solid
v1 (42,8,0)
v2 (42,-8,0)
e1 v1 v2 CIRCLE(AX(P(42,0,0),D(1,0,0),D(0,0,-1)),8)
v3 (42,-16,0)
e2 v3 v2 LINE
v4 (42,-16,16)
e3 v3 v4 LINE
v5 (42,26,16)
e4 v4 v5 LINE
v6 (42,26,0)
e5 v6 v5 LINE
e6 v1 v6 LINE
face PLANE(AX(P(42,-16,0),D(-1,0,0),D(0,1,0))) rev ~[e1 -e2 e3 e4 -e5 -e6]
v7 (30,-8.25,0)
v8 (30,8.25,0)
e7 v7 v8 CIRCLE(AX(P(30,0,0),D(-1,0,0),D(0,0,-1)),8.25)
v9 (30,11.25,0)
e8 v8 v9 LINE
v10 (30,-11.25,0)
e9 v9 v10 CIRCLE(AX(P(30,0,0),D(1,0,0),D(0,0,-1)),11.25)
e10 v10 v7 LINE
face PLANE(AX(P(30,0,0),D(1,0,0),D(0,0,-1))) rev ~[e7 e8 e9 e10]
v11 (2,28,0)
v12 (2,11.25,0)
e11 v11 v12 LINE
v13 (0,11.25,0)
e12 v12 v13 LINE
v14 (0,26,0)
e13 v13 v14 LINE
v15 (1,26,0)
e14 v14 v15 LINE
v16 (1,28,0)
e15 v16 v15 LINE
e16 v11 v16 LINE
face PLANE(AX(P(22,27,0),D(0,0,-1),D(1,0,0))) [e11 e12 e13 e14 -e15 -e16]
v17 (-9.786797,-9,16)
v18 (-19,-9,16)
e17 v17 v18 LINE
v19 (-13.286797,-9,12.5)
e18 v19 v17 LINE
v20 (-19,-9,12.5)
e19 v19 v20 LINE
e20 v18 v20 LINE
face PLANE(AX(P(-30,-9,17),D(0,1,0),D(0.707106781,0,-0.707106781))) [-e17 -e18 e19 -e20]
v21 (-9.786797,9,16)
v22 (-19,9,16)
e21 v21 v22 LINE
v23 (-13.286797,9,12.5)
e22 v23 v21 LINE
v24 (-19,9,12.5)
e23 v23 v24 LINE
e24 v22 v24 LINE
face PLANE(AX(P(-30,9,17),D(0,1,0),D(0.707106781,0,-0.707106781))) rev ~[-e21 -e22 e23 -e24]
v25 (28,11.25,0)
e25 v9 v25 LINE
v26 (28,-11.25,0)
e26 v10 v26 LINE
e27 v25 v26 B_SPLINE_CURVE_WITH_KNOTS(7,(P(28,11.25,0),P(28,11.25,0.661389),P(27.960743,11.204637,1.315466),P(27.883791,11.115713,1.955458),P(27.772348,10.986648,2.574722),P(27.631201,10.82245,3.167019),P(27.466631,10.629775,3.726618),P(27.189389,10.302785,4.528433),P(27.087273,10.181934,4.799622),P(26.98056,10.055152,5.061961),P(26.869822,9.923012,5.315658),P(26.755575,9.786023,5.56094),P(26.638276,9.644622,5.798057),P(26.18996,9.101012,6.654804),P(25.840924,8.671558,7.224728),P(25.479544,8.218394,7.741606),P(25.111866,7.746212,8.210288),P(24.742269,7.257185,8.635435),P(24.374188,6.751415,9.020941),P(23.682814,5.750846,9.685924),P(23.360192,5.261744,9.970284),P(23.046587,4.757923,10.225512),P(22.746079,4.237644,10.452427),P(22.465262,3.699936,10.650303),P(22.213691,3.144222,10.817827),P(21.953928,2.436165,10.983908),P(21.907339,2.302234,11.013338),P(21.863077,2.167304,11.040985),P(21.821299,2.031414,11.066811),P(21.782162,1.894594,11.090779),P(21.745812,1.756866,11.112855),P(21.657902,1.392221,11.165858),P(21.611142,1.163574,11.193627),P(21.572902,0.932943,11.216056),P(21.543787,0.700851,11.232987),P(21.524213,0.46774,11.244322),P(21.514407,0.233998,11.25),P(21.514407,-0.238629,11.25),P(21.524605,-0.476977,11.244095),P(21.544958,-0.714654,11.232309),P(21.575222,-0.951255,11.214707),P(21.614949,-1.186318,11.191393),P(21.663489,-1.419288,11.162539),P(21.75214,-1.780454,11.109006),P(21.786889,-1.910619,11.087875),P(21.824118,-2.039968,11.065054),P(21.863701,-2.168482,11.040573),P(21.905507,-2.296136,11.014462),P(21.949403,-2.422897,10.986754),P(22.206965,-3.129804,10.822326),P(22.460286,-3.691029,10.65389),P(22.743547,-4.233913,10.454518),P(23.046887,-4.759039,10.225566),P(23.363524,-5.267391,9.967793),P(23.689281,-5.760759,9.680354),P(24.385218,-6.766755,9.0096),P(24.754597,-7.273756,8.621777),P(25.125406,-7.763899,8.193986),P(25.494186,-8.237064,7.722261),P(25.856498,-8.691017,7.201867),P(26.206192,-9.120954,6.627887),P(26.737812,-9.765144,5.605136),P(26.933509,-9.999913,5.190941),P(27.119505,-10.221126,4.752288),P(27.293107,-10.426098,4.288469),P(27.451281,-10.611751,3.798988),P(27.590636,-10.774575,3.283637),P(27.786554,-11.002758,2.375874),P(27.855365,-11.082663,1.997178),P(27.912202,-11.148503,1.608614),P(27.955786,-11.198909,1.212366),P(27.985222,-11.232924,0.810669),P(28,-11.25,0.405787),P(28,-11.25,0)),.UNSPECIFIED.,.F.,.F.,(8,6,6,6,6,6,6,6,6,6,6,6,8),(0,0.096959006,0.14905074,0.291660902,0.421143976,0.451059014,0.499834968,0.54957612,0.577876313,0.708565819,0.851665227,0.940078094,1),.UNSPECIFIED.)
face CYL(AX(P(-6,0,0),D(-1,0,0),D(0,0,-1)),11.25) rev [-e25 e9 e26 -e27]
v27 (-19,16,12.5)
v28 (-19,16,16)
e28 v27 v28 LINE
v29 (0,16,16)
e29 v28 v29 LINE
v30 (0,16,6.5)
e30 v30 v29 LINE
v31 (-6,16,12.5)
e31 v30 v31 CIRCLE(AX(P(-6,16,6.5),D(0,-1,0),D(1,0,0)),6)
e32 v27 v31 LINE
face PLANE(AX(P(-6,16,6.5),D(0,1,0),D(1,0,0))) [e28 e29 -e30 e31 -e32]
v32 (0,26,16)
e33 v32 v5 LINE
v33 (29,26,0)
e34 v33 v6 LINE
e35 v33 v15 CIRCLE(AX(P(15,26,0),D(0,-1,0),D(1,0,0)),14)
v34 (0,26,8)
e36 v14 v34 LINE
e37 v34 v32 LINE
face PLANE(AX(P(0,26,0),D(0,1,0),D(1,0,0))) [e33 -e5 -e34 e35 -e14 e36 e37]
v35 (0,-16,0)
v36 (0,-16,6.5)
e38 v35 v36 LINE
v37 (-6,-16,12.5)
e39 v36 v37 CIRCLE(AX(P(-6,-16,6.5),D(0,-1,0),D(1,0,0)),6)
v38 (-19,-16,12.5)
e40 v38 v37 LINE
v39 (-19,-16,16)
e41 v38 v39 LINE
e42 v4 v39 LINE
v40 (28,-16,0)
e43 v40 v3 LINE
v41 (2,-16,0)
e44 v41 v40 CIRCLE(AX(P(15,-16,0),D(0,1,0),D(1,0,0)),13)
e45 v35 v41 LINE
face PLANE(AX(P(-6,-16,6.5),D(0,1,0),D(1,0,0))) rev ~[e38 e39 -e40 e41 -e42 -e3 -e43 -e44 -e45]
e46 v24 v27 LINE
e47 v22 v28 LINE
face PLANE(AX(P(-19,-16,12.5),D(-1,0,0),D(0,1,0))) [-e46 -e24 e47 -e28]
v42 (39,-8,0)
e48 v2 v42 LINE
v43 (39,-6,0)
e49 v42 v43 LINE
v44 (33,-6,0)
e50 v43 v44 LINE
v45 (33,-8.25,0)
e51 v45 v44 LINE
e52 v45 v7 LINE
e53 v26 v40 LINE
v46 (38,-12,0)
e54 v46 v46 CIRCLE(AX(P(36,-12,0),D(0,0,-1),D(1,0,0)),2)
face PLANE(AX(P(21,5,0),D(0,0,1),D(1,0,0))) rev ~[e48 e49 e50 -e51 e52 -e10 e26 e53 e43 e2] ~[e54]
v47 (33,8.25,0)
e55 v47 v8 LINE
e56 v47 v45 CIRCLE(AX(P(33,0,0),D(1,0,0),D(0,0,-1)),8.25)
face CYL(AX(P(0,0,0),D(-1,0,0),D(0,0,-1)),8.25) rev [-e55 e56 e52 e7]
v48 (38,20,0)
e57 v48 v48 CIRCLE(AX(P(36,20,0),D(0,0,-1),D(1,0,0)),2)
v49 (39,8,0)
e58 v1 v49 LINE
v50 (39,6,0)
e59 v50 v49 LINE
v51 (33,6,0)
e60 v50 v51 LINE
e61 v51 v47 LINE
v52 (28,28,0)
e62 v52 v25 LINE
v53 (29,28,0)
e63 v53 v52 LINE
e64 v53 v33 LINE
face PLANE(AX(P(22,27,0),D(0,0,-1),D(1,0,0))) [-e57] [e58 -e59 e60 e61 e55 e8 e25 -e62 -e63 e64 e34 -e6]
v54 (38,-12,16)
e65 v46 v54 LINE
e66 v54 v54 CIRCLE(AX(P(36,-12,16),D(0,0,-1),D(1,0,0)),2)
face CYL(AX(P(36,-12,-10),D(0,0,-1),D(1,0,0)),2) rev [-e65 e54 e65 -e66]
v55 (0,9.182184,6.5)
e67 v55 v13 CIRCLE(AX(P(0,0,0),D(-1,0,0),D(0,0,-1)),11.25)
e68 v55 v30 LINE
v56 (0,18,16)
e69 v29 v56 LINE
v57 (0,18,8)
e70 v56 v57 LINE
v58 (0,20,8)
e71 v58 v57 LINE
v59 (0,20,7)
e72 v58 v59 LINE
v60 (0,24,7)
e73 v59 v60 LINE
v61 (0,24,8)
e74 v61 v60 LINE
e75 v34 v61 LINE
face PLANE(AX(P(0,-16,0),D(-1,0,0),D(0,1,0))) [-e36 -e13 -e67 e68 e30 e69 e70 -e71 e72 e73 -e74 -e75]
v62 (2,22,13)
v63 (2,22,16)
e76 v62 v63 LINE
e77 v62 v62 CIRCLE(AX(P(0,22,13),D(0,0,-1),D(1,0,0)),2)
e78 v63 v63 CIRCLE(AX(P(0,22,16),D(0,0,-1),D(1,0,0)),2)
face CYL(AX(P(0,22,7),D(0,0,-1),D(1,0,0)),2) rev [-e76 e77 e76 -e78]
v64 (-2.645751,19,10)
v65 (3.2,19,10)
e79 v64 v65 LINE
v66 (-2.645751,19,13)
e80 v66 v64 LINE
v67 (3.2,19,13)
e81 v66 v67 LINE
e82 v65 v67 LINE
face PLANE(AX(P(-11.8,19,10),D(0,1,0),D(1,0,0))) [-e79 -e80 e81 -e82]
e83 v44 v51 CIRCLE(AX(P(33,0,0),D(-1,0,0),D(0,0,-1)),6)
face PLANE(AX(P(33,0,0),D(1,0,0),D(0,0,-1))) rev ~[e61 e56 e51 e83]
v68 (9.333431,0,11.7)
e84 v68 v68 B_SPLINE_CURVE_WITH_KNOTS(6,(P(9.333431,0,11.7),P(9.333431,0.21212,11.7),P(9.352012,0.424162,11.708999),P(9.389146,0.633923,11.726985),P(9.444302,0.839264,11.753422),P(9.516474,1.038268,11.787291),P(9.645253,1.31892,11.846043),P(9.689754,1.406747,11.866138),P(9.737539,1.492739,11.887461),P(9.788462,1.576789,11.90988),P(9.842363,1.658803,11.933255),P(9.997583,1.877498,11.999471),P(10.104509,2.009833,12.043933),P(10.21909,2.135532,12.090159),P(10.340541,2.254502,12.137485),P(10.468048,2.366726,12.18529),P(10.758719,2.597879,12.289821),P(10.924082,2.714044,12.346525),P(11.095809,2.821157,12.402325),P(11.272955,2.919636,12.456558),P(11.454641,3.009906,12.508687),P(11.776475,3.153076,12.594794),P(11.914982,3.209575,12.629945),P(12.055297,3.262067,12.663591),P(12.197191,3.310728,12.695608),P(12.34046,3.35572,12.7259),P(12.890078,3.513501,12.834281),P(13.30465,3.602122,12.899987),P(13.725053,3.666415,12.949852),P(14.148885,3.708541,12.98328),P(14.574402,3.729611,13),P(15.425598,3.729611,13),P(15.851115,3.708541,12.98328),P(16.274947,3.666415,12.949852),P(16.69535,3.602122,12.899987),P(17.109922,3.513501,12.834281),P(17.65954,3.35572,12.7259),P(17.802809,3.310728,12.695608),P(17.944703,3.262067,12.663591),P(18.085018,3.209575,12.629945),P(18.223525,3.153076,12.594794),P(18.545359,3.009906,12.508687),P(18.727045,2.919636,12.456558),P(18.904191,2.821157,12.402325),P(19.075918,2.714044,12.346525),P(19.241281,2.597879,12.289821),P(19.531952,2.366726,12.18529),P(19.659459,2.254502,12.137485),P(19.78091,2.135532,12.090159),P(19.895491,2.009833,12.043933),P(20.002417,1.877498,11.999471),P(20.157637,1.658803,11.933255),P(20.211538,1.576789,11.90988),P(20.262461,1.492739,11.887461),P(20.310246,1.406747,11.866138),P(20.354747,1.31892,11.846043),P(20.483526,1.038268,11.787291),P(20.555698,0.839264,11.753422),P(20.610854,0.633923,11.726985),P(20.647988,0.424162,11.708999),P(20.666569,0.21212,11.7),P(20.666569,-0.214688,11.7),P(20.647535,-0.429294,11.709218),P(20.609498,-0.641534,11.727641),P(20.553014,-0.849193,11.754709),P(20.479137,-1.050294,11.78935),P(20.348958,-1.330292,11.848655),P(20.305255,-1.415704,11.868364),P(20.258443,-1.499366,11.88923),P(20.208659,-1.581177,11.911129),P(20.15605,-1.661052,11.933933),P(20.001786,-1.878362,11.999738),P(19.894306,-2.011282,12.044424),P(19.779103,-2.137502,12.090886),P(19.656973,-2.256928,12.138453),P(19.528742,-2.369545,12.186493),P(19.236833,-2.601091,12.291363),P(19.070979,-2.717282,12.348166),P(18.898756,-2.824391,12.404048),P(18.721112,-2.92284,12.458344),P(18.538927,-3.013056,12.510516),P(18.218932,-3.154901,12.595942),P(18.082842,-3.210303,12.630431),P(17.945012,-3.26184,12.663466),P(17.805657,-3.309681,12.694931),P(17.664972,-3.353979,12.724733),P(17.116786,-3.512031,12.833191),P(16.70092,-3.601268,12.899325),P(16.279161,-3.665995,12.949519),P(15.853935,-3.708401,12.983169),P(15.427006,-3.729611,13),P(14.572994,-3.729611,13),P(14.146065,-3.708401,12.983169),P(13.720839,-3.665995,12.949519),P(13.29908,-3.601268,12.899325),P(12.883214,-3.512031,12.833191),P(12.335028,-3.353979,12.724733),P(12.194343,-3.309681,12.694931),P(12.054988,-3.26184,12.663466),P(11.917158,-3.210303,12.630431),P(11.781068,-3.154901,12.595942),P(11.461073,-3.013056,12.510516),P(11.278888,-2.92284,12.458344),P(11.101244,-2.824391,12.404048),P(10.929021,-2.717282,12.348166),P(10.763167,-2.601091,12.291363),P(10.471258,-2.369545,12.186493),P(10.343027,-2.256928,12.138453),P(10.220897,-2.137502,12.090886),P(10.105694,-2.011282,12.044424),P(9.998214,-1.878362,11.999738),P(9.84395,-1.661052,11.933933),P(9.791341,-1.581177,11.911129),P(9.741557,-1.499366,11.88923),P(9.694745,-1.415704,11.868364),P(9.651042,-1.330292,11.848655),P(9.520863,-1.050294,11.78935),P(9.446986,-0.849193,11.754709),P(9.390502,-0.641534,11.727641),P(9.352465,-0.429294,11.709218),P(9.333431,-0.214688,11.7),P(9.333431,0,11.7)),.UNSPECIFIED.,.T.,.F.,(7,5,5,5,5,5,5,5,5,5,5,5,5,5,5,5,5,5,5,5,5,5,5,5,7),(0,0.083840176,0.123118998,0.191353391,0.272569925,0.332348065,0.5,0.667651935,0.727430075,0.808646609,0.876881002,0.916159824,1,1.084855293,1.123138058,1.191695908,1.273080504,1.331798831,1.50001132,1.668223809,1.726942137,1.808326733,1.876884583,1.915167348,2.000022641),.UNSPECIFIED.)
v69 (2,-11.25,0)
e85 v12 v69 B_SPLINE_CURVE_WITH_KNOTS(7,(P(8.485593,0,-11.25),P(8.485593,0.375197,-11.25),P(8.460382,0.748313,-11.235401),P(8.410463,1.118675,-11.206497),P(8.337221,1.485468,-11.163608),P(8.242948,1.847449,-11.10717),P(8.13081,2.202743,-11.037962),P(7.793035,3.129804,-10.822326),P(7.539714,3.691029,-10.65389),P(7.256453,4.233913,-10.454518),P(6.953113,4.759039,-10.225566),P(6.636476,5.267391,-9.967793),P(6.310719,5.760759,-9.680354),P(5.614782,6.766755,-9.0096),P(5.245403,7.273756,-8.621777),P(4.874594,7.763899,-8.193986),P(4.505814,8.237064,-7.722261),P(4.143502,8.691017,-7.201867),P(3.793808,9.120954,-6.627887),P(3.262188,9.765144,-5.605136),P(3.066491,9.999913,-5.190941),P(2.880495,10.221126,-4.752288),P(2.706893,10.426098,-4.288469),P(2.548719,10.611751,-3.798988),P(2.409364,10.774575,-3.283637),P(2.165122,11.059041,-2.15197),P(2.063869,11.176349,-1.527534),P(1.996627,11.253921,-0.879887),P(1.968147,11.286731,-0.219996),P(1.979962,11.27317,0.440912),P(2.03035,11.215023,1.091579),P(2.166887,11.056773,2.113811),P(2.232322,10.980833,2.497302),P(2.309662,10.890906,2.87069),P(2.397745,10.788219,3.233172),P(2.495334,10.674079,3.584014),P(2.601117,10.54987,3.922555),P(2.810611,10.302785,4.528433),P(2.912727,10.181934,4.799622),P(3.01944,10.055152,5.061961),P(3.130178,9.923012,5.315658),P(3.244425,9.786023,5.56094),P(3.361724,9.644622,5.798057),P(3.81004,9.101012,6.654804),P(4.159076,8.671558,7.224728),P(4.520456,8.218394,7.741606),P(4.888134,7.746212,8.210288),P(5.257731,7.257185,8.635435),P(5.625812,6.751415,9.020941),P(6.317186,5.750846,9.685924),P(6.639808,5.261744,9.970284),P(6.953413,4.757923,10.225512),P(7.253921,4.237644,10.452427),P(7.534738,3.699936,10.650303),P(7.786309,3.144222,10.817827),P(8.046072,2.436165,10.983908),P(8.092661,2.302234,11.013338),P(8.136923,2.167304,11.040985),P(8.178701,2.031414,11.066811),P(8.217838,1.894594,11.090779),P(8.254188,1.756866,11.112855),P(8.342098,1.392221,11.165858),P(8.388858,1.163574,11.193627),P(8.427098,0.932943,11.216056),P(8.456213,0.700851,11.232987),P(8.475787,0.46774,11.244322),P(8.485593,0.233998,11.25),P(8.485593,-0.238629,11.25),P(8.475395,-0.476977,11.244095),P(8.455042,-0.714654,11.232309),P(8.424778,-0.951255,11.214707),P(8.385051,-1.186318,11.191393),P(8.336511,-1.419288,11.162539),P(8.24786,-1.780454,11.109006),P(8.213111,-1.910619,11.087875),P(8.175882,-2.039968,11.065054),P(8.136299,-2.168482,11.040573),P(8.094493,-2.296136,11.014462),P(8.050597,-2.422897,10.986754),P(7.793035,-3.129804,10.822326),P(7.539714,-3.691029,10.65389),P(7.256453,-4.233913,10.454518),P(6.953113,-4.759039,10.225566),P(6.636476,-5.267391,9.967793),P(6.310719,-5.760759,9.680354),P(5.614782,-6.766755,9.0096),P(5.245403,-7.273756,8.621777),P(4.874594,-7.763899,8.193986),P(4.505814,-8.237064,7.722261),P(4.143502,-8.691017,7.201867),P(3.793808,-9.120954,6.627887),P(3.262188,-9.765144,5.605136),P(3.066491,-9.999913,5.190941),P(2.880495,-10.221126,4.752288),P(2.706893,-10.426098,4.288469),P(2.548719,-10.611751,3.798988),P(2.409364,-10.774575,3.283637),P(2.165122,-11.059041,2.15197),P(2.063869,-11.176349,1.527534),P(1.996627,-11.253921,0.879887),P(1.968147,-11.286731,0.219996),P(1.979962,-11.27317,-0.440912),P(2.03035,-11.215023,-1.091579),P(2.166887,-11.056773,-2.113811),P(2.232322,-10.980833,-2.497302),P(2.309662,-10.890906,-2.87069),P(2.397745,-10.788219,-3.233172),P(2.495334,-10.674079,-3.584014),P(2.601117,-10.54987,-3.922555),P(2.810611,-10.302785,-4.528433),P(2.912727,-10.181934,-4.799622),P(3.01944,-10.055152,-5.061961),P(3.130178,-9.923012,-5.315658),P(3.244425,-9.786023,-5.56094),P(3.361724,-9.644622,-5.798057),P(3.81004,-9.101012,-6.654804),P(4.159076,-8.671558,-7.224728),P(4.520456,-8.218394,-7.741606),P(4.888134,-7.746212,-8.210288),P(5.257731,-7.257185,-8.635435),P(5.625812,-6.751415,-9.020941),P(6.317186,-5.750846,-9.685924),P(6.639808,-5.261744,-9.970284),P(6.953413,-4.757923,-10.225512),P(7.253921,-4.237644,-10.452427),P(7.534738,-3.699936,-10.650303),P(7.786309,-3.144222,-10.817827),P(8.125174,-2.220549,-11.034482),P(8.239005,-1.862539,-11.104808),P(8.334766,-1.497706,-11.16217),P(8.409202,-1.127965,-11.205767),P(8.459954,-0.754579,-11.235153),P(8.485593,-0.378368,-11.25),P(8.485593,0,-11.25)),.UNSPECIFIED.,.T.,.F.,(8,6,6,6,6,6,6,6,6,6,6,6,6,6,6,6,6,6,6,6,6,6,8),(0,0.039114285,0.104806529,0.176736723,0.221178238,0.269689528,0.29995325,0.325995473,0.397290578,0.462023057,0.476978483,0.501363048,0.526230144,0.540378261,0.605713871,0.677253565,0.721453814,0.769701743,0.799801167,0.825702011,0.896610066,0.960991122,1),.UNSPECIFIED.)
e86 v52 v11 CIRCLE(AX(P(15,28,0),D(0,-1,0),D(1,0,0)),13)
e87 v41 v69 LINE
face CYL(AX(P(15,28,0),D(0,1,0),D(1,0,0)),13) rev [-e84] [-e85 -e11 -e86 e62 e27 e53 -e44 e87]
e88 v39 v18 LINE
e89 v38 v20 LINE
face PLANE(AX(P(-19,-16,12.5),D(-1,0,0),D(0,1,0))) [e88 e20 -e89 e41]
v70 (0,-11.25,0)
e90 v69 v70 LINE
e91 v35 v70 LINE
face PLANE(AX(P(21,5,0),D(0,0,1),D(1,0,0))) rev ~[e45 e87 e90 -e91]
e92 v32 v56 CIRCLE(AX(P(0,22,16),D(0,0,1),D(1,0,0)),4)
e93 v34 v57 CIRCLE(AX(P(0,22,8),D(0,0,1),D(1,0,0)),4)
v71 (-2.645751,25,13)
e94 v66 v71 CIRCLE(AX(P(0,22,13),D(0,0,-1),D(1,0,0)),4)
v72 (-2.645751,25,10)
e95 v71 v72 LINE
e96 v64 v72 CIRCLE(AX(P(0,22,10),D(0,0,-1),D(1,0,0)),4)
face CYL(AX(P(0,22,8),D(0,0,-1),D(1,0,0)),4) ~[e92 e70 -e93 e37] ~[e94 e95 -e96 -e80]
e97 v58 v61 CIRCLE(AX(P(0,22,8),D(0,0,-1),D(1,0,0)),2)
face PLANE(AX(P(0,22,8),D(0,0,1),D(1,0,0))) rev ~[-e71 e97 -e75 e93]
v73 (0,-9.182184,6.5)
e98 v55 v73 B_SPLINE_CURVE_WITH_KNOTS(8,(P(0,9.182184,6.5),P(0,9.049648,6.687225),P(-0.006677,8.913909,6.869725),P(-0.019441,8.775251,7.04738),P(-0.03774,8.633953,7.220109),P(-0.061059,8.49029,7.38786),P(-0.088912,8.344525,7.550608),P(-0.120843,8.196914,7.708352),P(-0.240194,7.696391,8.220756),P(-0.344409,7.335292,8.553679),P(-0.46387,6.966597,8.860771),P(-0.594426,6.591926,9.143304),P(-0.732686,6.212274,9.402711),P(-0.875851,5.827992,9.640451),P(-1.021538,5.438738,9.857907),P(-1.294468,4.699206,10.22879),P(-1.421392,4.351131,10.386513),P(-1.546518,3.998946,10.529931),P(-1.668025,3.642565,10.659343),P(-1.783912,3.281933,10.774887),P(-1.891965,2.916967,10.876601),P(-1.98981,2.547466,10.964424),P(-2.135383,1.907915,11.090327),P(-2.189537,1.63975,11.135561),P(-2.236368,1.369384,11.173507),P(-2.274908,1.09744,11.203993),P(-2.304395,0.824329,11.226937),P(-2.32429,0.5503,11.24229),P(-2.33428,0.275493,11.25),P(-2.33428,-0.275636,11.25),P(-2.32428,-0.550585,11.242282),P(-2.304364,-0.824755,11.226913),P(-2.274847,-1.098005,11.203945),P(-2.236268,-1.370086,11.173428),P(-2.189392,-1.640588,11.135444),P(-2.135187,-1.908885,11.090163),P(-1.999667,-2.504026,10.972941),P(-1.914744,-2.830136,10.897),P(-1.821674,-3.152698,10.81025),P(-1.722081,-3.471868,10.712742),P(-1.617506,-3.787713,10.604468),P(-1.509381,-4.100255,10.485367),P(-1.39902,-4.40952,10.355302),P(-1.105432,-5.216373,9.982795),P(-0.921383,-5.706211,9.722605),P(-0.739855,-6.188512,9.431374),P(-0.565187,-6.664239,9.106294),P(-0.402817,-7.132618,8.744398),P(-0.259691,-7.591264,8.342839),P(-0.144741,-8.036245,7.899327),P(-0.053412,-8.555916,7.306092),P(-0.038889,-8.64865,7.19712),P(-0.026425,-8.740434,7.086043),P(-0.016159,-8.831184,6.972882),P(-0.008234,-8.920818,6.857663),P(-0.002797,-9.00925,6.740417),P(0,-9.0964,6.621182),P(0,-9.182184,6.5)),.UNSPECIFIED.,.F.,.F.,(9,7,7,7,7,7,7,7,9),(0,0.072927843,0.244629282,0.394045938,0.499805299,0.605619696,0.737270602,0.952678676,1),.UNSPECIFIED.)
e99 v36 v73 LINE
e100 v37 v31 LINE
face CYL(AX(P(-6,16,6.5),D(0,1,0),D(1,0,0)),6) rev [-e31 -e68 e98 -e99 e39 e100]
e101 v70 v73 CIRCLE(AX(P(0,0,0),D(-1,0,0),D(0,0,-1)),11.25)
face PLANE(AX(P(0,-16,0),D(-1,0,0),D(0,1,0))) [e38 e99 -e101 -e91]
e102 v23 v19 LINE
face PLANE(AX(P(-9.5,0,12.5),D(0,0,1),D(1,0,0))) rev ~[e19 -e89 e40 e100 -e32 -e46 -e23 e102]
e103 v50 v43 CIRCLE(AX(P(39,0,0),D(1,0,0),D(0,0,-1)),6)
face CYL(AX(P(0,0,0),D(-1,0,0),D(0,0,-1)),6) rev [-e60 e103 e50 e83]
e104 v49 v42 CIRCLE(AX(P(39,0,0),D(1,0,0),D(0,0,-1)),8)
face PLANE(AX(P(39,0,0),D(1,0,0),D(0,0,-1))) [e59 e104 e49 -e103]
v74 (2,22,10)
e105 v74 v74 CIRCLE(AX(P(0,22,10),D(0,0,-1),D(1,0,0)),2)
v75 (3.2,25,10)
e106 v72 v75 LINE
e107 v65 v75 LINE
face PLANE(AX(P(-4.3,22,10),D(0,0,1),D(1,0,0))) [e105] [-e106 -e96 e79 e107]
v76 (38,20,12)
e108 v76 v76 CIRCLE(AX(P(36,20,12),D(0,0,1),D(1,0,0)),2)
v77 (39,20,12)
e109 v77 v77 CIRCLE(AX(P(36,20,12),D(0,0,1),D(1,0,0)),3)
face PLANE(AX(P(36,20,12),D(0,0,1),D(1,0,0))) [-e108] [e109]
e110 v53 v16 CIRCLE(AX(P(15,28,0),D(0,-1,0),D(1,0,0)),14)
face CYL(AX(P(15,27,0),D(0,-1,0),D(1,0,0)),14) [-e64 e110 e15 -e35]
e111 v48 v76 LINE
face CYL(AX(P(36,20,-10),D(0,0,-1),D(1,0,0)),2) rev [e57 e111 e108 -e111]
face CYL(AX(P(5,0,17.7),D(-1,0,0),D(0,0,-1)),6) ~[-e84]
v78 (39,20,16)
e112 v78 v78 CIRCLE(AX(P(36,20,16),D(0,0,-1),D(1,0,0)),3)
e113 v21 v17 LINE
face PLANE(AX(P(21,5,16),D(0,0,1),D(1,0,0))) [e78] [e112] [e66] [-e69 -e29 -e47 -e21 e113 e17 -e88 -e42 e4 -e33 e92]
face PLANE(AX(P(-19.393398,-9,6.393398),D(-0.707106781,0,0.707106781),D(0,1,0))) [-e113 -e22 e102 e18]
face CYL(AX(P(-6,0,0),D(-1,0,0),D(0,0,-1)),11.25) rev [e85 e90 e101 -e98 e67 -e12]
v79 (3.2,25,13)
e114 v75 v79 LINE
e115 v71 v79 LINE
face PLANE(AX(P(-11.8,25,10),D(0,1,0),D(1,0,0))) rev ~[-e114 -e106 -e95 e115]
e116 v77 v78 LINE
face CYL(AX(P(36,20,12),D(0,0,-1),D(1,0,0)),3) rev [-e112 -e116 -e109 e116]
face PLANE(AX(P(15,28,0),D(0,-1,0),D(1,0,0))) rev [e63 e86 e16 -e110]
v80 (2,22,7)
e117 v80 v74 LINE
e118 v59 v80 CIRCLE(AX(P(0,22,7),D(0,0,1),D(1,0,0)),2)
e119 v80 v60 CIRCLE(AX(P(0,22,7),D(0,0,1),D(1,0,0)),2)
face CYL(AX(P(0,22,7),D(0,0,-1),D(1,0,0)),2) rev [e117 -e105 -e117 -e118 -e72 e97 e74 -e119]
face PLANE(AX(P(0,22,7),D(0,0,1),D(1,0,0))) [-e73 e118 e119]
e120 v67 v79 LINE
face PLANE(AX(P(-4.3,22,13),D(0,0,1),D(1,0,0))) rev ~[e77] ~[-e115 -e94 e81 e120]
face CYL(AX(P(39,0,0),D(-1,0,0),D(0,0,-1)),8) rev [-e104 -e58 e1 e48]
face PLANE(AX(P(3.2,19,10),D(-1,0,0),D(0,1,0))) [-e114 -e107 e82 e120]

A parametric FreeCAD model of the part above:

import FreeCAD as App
import Part
import Sketcher
from FreeCAD import Vector
Q = App.Units.Quantity

doc = App.newDocument("Part")
body = doc.addObject("PartDesign::Body", "Body")

sketch1 = body.newObject("Sketcher::SketchObject", "Sketch")
sketch1.AttachmentSupport = (doc.getObject("XY_Plane"), [""])
sketch1.MapMode = "FlatFace"
sketch1.addGeometry(Part.Circle(Vector(0, 0, 0), Vector(0, 0, 1), 13), False)
sketch1.addConstraint([
    Sketcher.Constraint("Coincident", 0, 3, -1, 1),
    Sketcher.Constraint("Diameter", 0, Q("26 mm")),
])
pad1 = body.newObject("PartDesign::Pad", "Pad")
pad1.Profile = sketch1
pad1.Length = 2.2
body2 = doc.addObject("PartDesign::Body", "Body001")
doc.recompute()

body.Placement = App.Placement(Vector(0, 0, 0), App.Rotation(Vector(1, 0, 0), 90))
boolean = body2.newObject("PartDesign::Boolean", "Boolean")
boolean.Type = "Fuse"
boolean.addObjects([body])
body3 = doc.addObject("PartDesign::Body", "Body002")
doc.recompute()

body2.Placement = App.Placement(Vector(15, 29, 0), App.Rotation(Vector(0, 0, 1), 0))
boolean2 = body3.newObject("PartDesign::Boolean", "Boolean001")
boolean2.Type = "Fuse"
boolean2.addObjects([body2])
body4 = doc.addObject("PartDesign::Body", "Body003")

sketch2 = body4.newObject("Sketcher::SketchObject", "Sketch001")
sketch2.AttachmentSupport = (doc.getObject("XZ_Plane003"), [""])
sketch2.MapMode = "FlatFace"
sketch2.addGeometry([
    Part.LineSegment(Vector(0, 2, 0), Vector(0, 0, 0)),
    Part.LineSegment(Vector(0, 0, 0), Vector(14, 0, 0)),
    Part.LineSegment(Vector(14, 0, 0), Vector(14, 2, 0)),
    Part.LineSegment(Vector(14, 2, 0), Vector(0, 2, 0)),
], False)
sketch2.addConstraint([
    Sketcher.Constraint("Coincident", 0, 2, 1, 1),
    Sketcher.Constraint("Coincident", 1, 2, 2, 1),
    Sketcher.Constraint("Coincident", 2, 2, 3, 1),
    Sketcher.Constraint("Coincident", 3, 2, 0, 1),
    Sketcher.Constraint("Vertical", 0),
    Sketcher.Constraint("Horizontal", 1),
    Sketcher.Constraint("Vertical", 2),
    Sketcher.Constraint("Horizontal", 3),
    Sketcher.Constraint("Coincident", 0, 2, -1, 1),
    Sketcher.Constraint("DistanceX", 1, 1, 1, 2, Q("14 mm")),
    Sketcher.Constraint("DistanceY", 0, 2, 0, 1, Q("2 mm")),
])
revolution = body4.newObject("PartDesign::Revolution", "Revolution")
revolution.Profile = sketch2
revolution.ReferenceAxis = (sketch2, ["V_Axis"])
revolution.Angle = 180
body5 = doc.addObject("PartDesign::Body", "Body004")
doc.recompute()

body4.Placement = App.Placement(Vector(0, 0, 0), App.Rotation(Vector(1, 0, 0), 90))
boolean3 = body5.newObject("PartDesign::Boolean", "Boolean002")
boolean3.Type = "Fuse"
boolean3.addObjects([body4])
body6 = doc.addObject("PartDesign::Body", "Body005")
doc.recompute()

body5.Placement = App.Placement(Vector(15, 29, 0), App.Rotation(Vector(0, 0, 1), 0))
boolean4 = body6.newObject("PartDesign::Boolean", "Boolean003")
boolean4.Type = "Fuse"
boolean4.addObjects([body5])
doc.recompute()

boolean5 = body6.newObject("PartDesign::Boolean", "Boolean004")
boolean5.Type = "Cut"
boolean5.addObjects([body3])
body7 = doc.addObject("PartDesign::Body", "Body006")
doc.recompute()

body6.Placement = App.Placement(Vector(0, -1, 0), App.Rotation(Vector(0, 0, 1), 0))
boolean6 = body7.newObject("PartDesign::Boolean", "Boolean005")
boolean6.Type = "Fuse"
boolean6.addObjects([body6])
body8 = doc.addObject("PartDesign::Body", "Body007")

sketch3 = body8.newObject("Sketcher::SketchObject", "Sketch002")
sketch3.AttachmentSupport = (doc.getObject("XY_Plane007"), [""])
sketch3.MapMode = "FlatFace"
sketch3.addGeometry(Part.Circle(Vector(0, 0, 0), Vector(0, 0, 1), 6), False)
sketch3.addConstraint([
    Sketcher.Constraint("Coincident", 0, 3, -1, 1),
    Sketcher.Constraint("Diameter", 0, Q("12 mm")),
])
pad2 = body8.newObject("PartDesign::Pad", "Pad001")
pad2.Profile = sketch3
pad2.Length = 20
body9 = doc.addObject("PartDesign::Body", "Body008")
doc.recompute()

body8.Placement = App.Placement(Vector(0, 0, 0), App.Rotation(Vector(0, 1, 0), 90))
boolean7 = body9.newObject("PartDesign::Boolean", "Boolean006")
boolean7.Type = "Fuse"
boolean7.addObjects([body8])
body10 = doc.addObject("PartDesign::Body", "Body009")
doc.recompute()

body9.Placement = App.Placement(Vector(5, 0, 17.7), App.Rotation(Vector(0, 0, 1), 0))
boolean8 = body10.newObject("PartDesign::Boolean", "Boolean007")
boolean8.Type = "Fuse"
boolean8.addObjects([body9])
body11 = doc.addObject("PartDesign::Body", "Body010")

sketch4 = body11.newObject("Sketcher::SketchObject", "Sketch003")
sketch4.AttachmentSupport = (doc.getObject("XY_Plane010"), [""])
sketch4.MapMode = "FlatFace"
sketch4.addGeometry(Part.Circle(Vector(0, 0, 0), Vector(0, 0, 1), 6), False)
sketch4.addConstraint([
    Sketcher.Constraint("Coincident", 0, 3, -1, 1),
    Sketcher.Constraint("Diameter", 0, Q("12 mm")),
])
pad3 = body11.newObject("PartDesign::Pad", "Pad002")
pad3.Profile = sketch4
pad3.Length = 20
body12 = doc.addObject("PartDesign::Body", "Body011")
doc.recompute()

body11.Placement = App.Placement(Vector(0, 0, 0), App.Rotation(Vector(0, 1, 0), 90))
boolean9 = body12.newObject("PartDesign::Boolean", "Boolean008")
boolean9.Type = "Fuse"
boolean9.addObjects([body11])
body13 = doc.addObject("PartDesign::Body", "Body012")
body13.AllowCompound = True
doc.recompute()

body12.Placement = App.Placement(Vector(5, 0, -17.7), App.Rotation(Vector(0, 0, 1), 0))
boolean10 = body13.newObject("PartDesign::Boolean", "Boolean009")
boolean10.Type = "Fuse"
boolean10.addObjects([body12])
doc.recompute()

boolean11 = body13.newObject("PartDesign::Boolean", "Boolean010")
boolean11.Type = "Fuse"
boolean11.addObjects([body10])
body14 = doc.addObject("PartDesign::Body", "Body013")

sketch5 = body14.newObject("Sketcher::SketchObject", "Sketch004")
sketch5.AttachmentSupport = (doc.getObject("XY_Plane013"), [""])
sketch5.MapMode = "FlatFace"
sketch5.addGeometry(Part.Circle(Vector(0, 0, 0), Vector(0, 0, 1), 13), False)
sketch5.addConstraint([
    Sketcher.Constraint("Coincident", 0, 3, -1, 1),
    Sketcher.Constraint("Diameter", 0, Q("26 mm")),
])
pad4 = body14.newObject("PartDesign::Pad", "Pad003")
pad4.Profile = sketch5
pad4.Length = 50
body15 = doc.addObject("PartDesign::Body", "Body014")
doc.recompute()

body14.Placement = App.Placement(Vector(0, 0, 0), App.Rotation(Vector(1, 0, 0), 90))
boolean12 = body15.newObject("PartDesign::Boolean", "Boolean011")
boolean12.Type = "Fuse"
boolean12.addObjects([body14])
body16 = doc.addObject("PartDesign::Body", "Body015")
doc.recompute()

body15.Placement = App.Placement(Vector(15, 29, 0), App.Rotation(Vector(0, 0, 1), 0))
boolean13 = body16.newObject("PartDesign::Boolean", "Boolean012")
boolean13.Type = "Fuse"
boolean13.addObjects([body15])
doc.recompute()

boolean14 = body16.newObject("PartDesign::Boolean", "Boolean013")
boolean14.Type = "Cut"
boolean14.addObjects([body13])
body17 = doc.addObject("PartDesign::Body", "Body016")

sketch6 = body17.newObject("Sketcher::SketchObject", "Sketch005")
sketch6.AttachmentSupport = (doc.getObject("XY_Plane016"), [""])
sketch6.MapMode = "FlatFace"
sketch6.addGeometry(Part.Circle(Vector(0, 0, 0), Vector(0, 0, 1), 8), False)
sketch6.addConstraint([
    Sketcher.Constraint("Coincident", 0, 3, -1, 1),
    Sketcher.Constraint("Diameter", 0, Q("16 mm")),
])
pad5 = body17.newObject("PartDesign::Pad", "Pad004")
pad5.Profile = sketch6
pad5.Length = 3
body18 = doc.addObject("PartDesign::Body", "Body017")
doc.recompute()

body17.Placement = App.Placement(Vector(0, 0, 0), App.Rotation(Vector(0, 1, 0), 90))
boolean15 = body18.newObject("PartDesign::Boolean", "Boolean014")
boolean15.Type = "Fuse"
boolean15.addObjects([body17])
body19 = doc.addObject("PartDesign::Body", "Body018")
doc.recompute()

body18.Placement = App.Placement(Vector(39, 0, 0), App.Rotation(Vector(0, 0, 1), 0))
boolean16 = body19.newObject("PartDesign::Boolean", "Boolean015")
boolean16.Type = "Fuse"
boolean16.addObjects([body18])
body20 = doc.addObject("PartDesign::Body", "Body019")

sketch7 = body20.newObject("Sketcher::SketchObject", "Sketch006")
sketch7.AttachmentSupport = (doc.getObject("XY_Plane019"), [""])
sketch7.MapMode = "FlatFace"
sketch7.addGeometry(Part.Circle(Vector(0, 0, 0), Vector(0, 0, 1), 6), False)
sketch7.addConstraint([
    Sketcher.Constraint("Coincident", 0, 3, -1, 1),
    Sketcher.Constraint("Diameter", 0, Q("12 mm")),
])
pad6 = body20.newObject("PartDesign::Pad", "Pad005")
pad6.Profile = sketch7
pad6.Length = 39
body21 = doc.addObject("PartDesign::Body", "Body020")
doc.recompute()

body20.Placement = App.Placement(Vector(0, 0, 0), App.Rotation(Vector(0, 1, 0), 90))
boolean17 = body21.newObject("PartDesign::Boolean", "Boolean016")
boolean17.Type = "Fuse"
boolean17.addObjects([body20])
body22 = doc.addObject("PartDesign::Body", "Body021")

sketch8 = body22.newObject("Sketcher::SketchObject", "Sketch007")
sketch8.AttachmentSupport = (doc.getObject("XY_Plane021"), [""])
sketch8.MapMode = "FlatFace"
sketch8.addGeometry(Part.Circle(Vector(0, 0, 0), Vector(0, 0, 1), 8.25), False)
sketch8.addConstraint([
    Sketcher.Constraint("Coincident", 0, 3, -1, 1),
    Sketcher.Constraint("Diameter", 0, Q("16.5 mm")),
])
pad7 = body22.newObject("PartDesign::Pad", "Pad006")
pad7.Profile = sketch8
pad7.Length = 33
body23 = doc.addObject("PartDesign::Body", "Body022")
doc.recompute()

body22.Placement = App.Placement(Vector(0, 0, 0), App.Rotation(Vector(0, 1, 0), 90))
boolean18 = body23.newObject("PartDesign::Boolean", "Boolean017")
boolean18.Type = "Fuse"
boolean18.addObjects([body22])
body24 = doc.addObject("PartDesign::Body", "Body023")

sketch9 = body24.newObject("Sketcher::SketchObject", "Sketch008")
sketch9.AttachmentSupport = (doc.getObject("XY_Plane023"), [""])
sketch9.MapMode = "FlatFace"
sketch9.addGeometry(Part.Circle(Vector(0, 0, 0), Vector(0, 0, 1), 11.25), False)
sketch9.addConstraint([
    Sketcher.Constraint("Coincident", 0, 3, -1, 1),
    Sketcher.Constraint("Diameter", 0, Q("22.5 mm")),
])
pad8 = body24.newObject("PartDesign::Pad", "Pad007")
pad8.Profile = sketch9
pad8.Length = 36
body25 = doc.addObject("PartDesign::Body", "Body024")
doc.recompute()

body24.Placement = App.Placement(Vector(0, 0, 0), App.Rotation(Vector(0, 1, 0), 90))
boolean19 = body25.newObject("PartDesign::Boolean", "Boolean018")
boolean19.Type = "Fuse"
boolean19.addObjects([body24])
body26 = doc.addObject("PartDesign::Body", "Body025")
body26.AllowCompound = True
doc.recompute()

body25.Placement = App.Placement(Vector(-6, 0, 0), App.Rotation(Vector(0, 0, 1), 0))
boolean20 = body26.newObject("PartDesign::Boolean", "Boolean019")
boolean20.Type = "Fuse"
boolean20.addObjects([body25])
doc.recompute()

boolean21 = body26.newObject("PartDesign::Boolean", "Boolean020")
boolean21.Type = "Fuse"
boolean21.addObjects([body16])
doc.recompute()

boolean22 = body26.newObject("PartDesign::Boolean", "Boolean021")
boolean22.Type = "Fuse"
boolean22.addObjects([body19])
doc.recompute()

boolean23 = body26.newObject("PartDesign::Boolean", "Boolean022")
boolean23.Type = "Fuse"
boolean23.addObjects([body21])
doc.recompute()

boolean24 = body26.newObject("PartDesign::Boolean", "Boolean023")
boolean24.Type = "Fuse"
boolean24.addObjects([body23])
body27 = doc.addObject("PartDesign::Body", "Body026")

sketch10 = body27.newObject("Sketcher::SketchObject", "Sketch009")
sketch10.AttachmentSupport = (doc.getObject("XY_Plane026"), [""])
sketch10.MapMode = "FlatFace"
sketch10.AttachmentOffset = App.Placement(Vector(0, 0, -7.5), App.Rotation())
sketch10.addGeometry([
    Part.LineSegment(Vector(41.8, 20, 0), Vector(41.8, 14, 0)),
    Part.LineSegment(Vector(41.8, 14, 0), Vector(51.8, 14, 0)),
    Part.LineSegment(Vector(51.8, 14, 0), Vector(51.8, 20, 0)),
    Part.LineSegment(Vector(51.8, 20, 0), Vector(41.8, 20, 0)),
], False)
sketch10.addConstraint([
    Sketcher.Constraint("Coincident", 0, 2, 1, 1),
    Sketcher.Constraint("Coincident", 1, 2, 2, 1),
    Sketcher.Constraint("Coincident", 2, 2, 3, 1),
    Sketcher.Constraint("Coincident", 3, 2, 0, 1),
    Sketcher.Constraint("Vertical", 0),
    Sketcher.Constraint("Horizontal", 1),
    Sketcher.Constraint("Vertical", 2),
    Sketcher.Constraint("Horizontal", 3),
    Sketcher.Constraint("DistanceX", 1, 1, 1, 2, Q("10 mm")),
    Sketcher.Constraint("DistanceY", 0, 2, 0, 1, Q("6 mm")),
    Sketcher.Constraint("DistanceY", -1, 1, 0, 2, Q("14 mm")),
    Sketcher.Constraint("DistanceX", -1, 1, 0, 2, Q("41.8 mm")),
])
pad9 = body27.newObject("PartDesign::Pad", "Pad008")
pad9.Profile = sketch10
pad9.Length = 2.7
body28 = doc.addObject("PartDesign::Body", "Body027")

sketch11 = body28.newObject("Sketcher::SketchObject", "Sketch010")
sketch11.AttachmentSupport = (doc.getObject("XY_Plane027"), [""])
sketch11.MapMode = "FlatFace"
sketch11.AttachmentOffset = App.Placement(Vector(0, 0, -6), App.Rotation())
sketch11.addGeometry(Part.Circle(Vector(45, 21, 0), Vector(0, 0, 1), 3), False)
sketch11.addConstraint([
    Sketcher.Constraint("Diameter", 0, Q("6 mm")),
    Sketcher.Constraint("DistanceX", -1, 1, 0, 3, Q("45 mm")),
    Sketcher.Constraint("DistanceY", -1, 1, 0, 3, Q("21 mm")),
])
pad10 = body28.newObject("PartDesign::Pad", "Pad009")
pad10.Profile = sketch11
pad10.Length = 11
body29 = doc.addObject("PartDesign::Body", "Body028")

sketch12 = body29.newObject("Sketcher::SketchObject", "Sketch011")
sketch12.AttachmentSupport = (doc.getObject("XY_Plane028"), [""])
sketch12.MapMode = "FlatFace"
sketch12.AttachmentOffset = App.Placement(Vector(0, 0, -34), App.Rotation())
sketch12.addGeometry(Part.Circle(Vector(45, 21, 0), Vector(0, 0, 1), 2), False)
sketch12.addConstraint([
    Sketcher.Constraint("Diameter", 0, Q("4 mm")),
    Sketcher.Constraint("DistanceX", -1, 1, 0, 3, Q("45 mm")),
    Sketcher.Constraint("DistanceY", -1, 1, 0, 3, Q("21 mm")),
])
pad11 = body29.newObject("PartDesign::Pad", "Pad010")
pad11.Profile = sketch12
pad11.Length = 29
doc.recompute()

boolean25 = body29.newObject("PartDesign::Boolean", "Boolean024")
boolean25.Type = "Fuse"
boolean25.addObjects([body28])
body30 = doc.addObject("PartDesign::Body", "Body029")
doc.recompute()

body29.Placement = App.Placement(Vector(0, -4, 24), App.Rotation(Vector(0, 0, 1), 0))
boolean26 = body30.newObject("PartDesign::Boolean", "Boolean025")
boolean26.Type = "Fuse"
boolean26.addObjects([body29])
doc.recompute()

boolean27 = body30.newObject("PartDesign::Boolean", "Boolean026")
boolean27.Type = "Fuse"
boolean27.addObjects([body27])
body31 = doc.addObject("PartDesign::Body", "Body030")
doc.recompute()

body30.Placement = App.Placement(Vector(-9, -29, 0), App.Rotation(Vector(0, 0, 1), 0))
boolean28 = body31.newObject("PartDesign::Boolean", "Boolean027")
boolean28.Type = "Fuse"
boolean28.addObjects([body30])
body32 = doc.addObject("PartDesign::Body", "Body031")

sketch13 = body32.newObject("Sketcher::SketchObject", "Sketch012")
sketch13.AttachmentSupport = (doc.getObject("XY_Plane031"), [""])
sketch13.MapMode = "FlatFace"
sketch13.AttachmentOffset = App.Placement(Vector(0, 0, -7.5), App.Rotation())
sketch13.addGeometry([
    Part.LineSegment(Vector(41.8, 20, 0), Vector(41.8, 14, 0)),
    Part.LineSegment(Vector(41.8, 14, 0), Vector(51.8, 14, 0)),
    Part.LineSegment(Vector(51.8, 14, 0), Vector(51.8, 20, 0)),
    Part.LineSegment(Vector(51.8, 20, 0), Vector(41.8, 20, 0)),
], False)
sketch13.addConstraint([
    Sketcher.Constraint("Coincident", 0, 2, 1, 1),
    Sketcher.Constraint("Coincident", 1, 2, 2, 1),
    Sketcher.Constraint("Coincident", 2, 2, 3, 1),
    Sketcher.Constraint("Coincident", 3, 2, 0, 1),
    Sketcher.Constraint("Vertical", 0),
    Sketcher.Constraint("Horizontal", 1),
    Sketcher.Constraint("Vertical", 2),
    Sketcher.Constraint("Horizontal", 3),
    Sketcher.Constraint("DistanceX", 1, 1, 1, 2, Q("10 mm")),
    Sketcher.Constraint("DistanceY", 0, 2, 0, 1, Q("6 mm")),
    Sketcher.Constraint("DistanceY", -1, 1, 0, 2, Q("14 mm")),
    Sketcher.Constraint("DistanceX", -1, 1, 0, 2, Q("41.8 mm")),
])
pad12 = body32.newObject("PartDesign::Pad", "Pad011")
pad12.Profile = sketch13
pad12.Length = 2.7
body33 = doc.addObject("PartDesign::Body", "Body032")

sketch14 = body33.newObject("Sketcher::SketchObject", "Sketch013")
sketch14.AttachmentSupport = (doc.getObject("XY_Plane032"), [""])
sketch14.MapMode = "FlatFace"
sketch14.AttachmentOffset = App.Placement(Vector(0, 0, -12), App.Rotation())
sketch14.addGeometry(Part.Circle(Vector(45, 21, 0), Vector(0, 0, 1), 3), False)
sketch14.addConstraint([
    Sketcher.Constraint("Diameter", 0, Q("6 mm")),
    Sketcher.Constraint("DistanceX", -1, 1, 0, 3, Q("45 mm")),
    Sketcher.Constraint("DistanceY", -1, 1, 0, 3, Q("21 mm")),
])
pad13 = body33.newObject("PartDesign::Pad", "Pad012")
pad13.Profile = sketch14
pad13.Length = 11
body34 = doc.addObject("PartDesign::Body", "Body033")

sketch15 = body34.newObject("Sketcher::SketchObject", "Sketch014")
sketch15.AttachmentSupport = (doc.getObject("XY_Plane033"), [""])
sketch15.MapMode = "FlatFace"
sketch15.AttachmentOffset = App.Placement(Vector(0, 0, -34), App.Rotation())
sketch15.addGeometry(Part.Circle(Vector(45, 21, 0), Vector(0, 0, 1), 2), False)
sketch15.addConstraint([
    Sketcher.Constraint("Diameter", 0, Q("4 mm")),
    Sketcher.Constraint("DistanceX", -1, 1, 0, 3, Q("45 mm")),
    Sketcher.Constraint("DistanceY", -1, 1, 0, 3, Q("21 mm")),
])
pad14 = body34.newObject("PartDesign::Pad", "Pad013")
pad14.Profile = sketch15
pad14.Length = 22
doc.recompute()

boolean29 = body34.newObject("PartDesign::Boolean", "Boolean028")
boolean29.Type = "Fuse"
boolean29.addObjects([body33])
body35 = doc.addObject("PartDesign::Body", "Body034")
doc.recompute()

body34.Placement = App.Placement(Vector(0, -4, 24), App.Rotation(Vector(0, 0, 1), 0))
boolean30 = body35.newObject("PartDesign::Boolean", "Boolean029")
boolean30.Type = "Fuse"
boolean30.addObjects([body34])
doc.recompute()

boolean31 = body35.newObject("PartDesign::Boolean", "Boolean030")
boolean31.Type = "Fuse"
boolean31.addObjects([body32])
body36 = doc.addObject("PartDesign::Body", "Body035")
body36.AllowCompound = True
doc.recompute()

body35.Placement = App.Placement(Vector(-9, 3, 0), App.Rotation(Vector(0, 0, 1), 0))
boolean32 = body36.newObject("PartDesign::Boolean", "Boolean031")
boolean32.Type = "Fuse"
boolean32.addObjects([body35])
doc.recompute()

boolean33 = body36.newObject("PartDesign::Boolean", "Boolean032")
boolean33.Type = "Fuse"
boolean33.addObjects([body31])
body37 = doc.addObject("PartDesign::Body", "Body036")

sketch16 = body37.newObject("Sketcher::SketchObject", "Sketch015")
sketch16.AttachmentSupport = (doc.getObject("XY_Plane036"), [""])
sketch16.MapMode = "FlatFace"
sketch16.AttachmentOffset = App.Placement(Vector(0, 0, 3), App.Rotation())
sketch16.addGeometry([
    Part.LineSegment(Vector(58.2, 73, 0), Vector(58.2, 67, 0)),
    Part.LineSegment(Vector(58.2, 67, 0), Vector(73.2, 67, 0)),
    Part.LineSegment(Vector(73.2, 67, 0), Vector(73.2, 73, 0)),
    Part.LineSegment(Vector(73.2, 73, 0), Vector(58.2, 73, 0)),
], False)
sketch16.addConstraint([
    Sketcher.Constraint("Coincident", 0, 2, 1, 1),
    Sketcher.Constraint("Coincident", 1, 2, 2, 1),
    Sketcher.Constraint("Coincident", 2, 2, 3, 1),
    Sketcher.Constraint("Coincident", 3, 2, 0, 1),
    Sketcher.Constraint("Vertical", 0),
    Sketcher.Constraint("Horizontal", 1),
    Sketcher.Constraint("Vertical", 2),
    Sketcher.Constraint("Horizontal", 3),
    Sketcher.Constraint("DistanceX", 1, 1, 1, 2, Q("15 mm")),
    Sketcher.Constraint("DistanceY", 0, 2, 0, 1, Q("6 mm")),
    Sketcher.Constraint("DistanceY", -1, 1, 0, 2, Q("67 mm")),
    Sketcher.Constraint("DistanceX", -1, 1, 0, 2, Q("58.2 mm")),
])
pad15 = body37.newObject("PartDesign::Pad", "Pad014")
pad15.Profile = sketch16
pad15.Length = 3
body38 = doc.addObject("PartDesign::Body", "Body037")

sketch17 = body38.newObject("Sketcher::SketchObject", "Sketch016")
sketch17.AttachmentSupport = (doc.getObject("XY_Plane037"), [""])
sketch17.MapMode = "FlatFace"
sketch17.AttachmentOffset = App.Placement(Vector(0, 0, 7), App.Rotation())
sketch17.addGeometry(Part.Circle(Vector(70, 70, 0), Vector(0, 0, 1), 1.5), False)
sketch17.addConstraint([
    Sketcher.Constraint("Diameter", 0, Q("3 mm")),
    Sketcher.Constraint("DistanceX", -1, 1, 0, 3, Q("70 mm")),
    Sketcher.Constraint("DistanceY", -1, 1, 0, 3, Q("70 mm")),
])
pad16 = body38.newObject("PartDesign::Pad", "Pad015")
pad16.Profile = sketch17
pad16.Length = 25
body39 = doc.addObject("PartDesign::Body", "Body038")

sketch18 = body39.newObject("Sketcher::SketchObject", "Sketch017")
sketch18.AttachmentSupport = (doc.getObject("XY_Plane038"), [""])
sketch18.MapMode = "FlatFace"
sketch18.addGeometry(Part.Circle(Vector(70, 70, 0), Vector(0, 0, 1), 2), False)
sketch18.addConstraint([
    Sketcher.Constraint("Diameter", 0, Q("4 mm")),
    Sketcher.Constraint("DistanceX", -1, 1, 0, 3, Q("70 mm")),
    Sketcher.Constraint("DistanceY", -1, 1, 0, 3, Q("70 mm")),
])
pad17 = body39.newObject("PartDesign::Pad", "Pad016")
pad17.Profile = sketch18
pad17.Length = 32
doc.recompute()

boolean34 = body39.newObject("PartDesign::Boolean", "Boolean033")
boolean34.Type = "Fuse"
boolean34.addObjects([body37])
doc.recompute()

boolean35 = body39.newObject("PartDesign::Boolean", "Boolean034")
boolean35.Type = "Fuse"
boolean35.addObjects([body38])
body40 = doc.addObject("PartDesign::Body", "Body039")
doc.recompute()

body39.Placement = App.Placement(Vector(-70, -48, 7), App.Rotation(Vector(0, 0, 1), 0))
boolean36 = body40.newObject("PartDesign::Boolean", "Boolean035")
boolean36.Type = "Fuse"
boolean36.addObjects([body39])
body41 = doc.addObject("PartDesign::Body", "Body040")

sketch19 = body41.newObject("Sketcher::SketchObject", "Sketch018")
sketch19.AttachmentSupport = (doc.getObject("XY_Plane040"), [""])
sketch19.MapMode = "FlatFace"
sketch19.addGeometry(Part.Circle(Vector(0, 0, 0), Vector(0, 0, 1), 5), False)
sketch19.addConstraint([
    Sketcher.Constraint("Coincident", 0, 3, -1, 1),
    Sketcher.Constraint("Diameter", 0, Q("10 mm")),
])
pad18 = body41.newObject("PartDesign::Pad", "Pad017")
pad18.Profile = sketch19
pad18.Length = 2.2
body42 = doc.addObject("PartDesign::Body", "Body041")
doc.recompute()

body41.Placement = App.Placement(Vector(0, 0, 0), App.Rotation(Vector(1, 0, 0), 90))
boolean37 = body42.newObject("PartDesign::Boolean", "Boolean036")
boolean37.Type = "Fuse"
boolean37.addObjects([body41])
body43 = doc.addObject("PartDesign::Body", "Body042")
body43.AllowCompound = True
doc.recompute()

body42.Placement = App.Placement(Vector(15, 26, 0), App.Rotation(Vector(0, 0, 1), 0))
boolean38 = body43.newObject("PartDesign::Boolean", "Boolean037")
boolean38.Type = "Fuse"
boolean38.addObjects([body42])
doc.recompute()

boolean39 = body43.newObject("PartDesign::Boolean", "Boolean038")
boolean39.Type = "Fuse"
boolean39.addObjects([body26])
doc.recompute()

boolean40 = body43.newObject("PartDesign::Boolean", "Boolean039")
boolean40.Type = "Fuse"
boolean40.addObjects([body36])
doc.recompute()

boolean41 = body43.newObject("PartDesign::Boolean", "Boolean040")
boolean41.Type = "Fuse"
boolean41.addObjects([body40])
body44 = doc.addObject("PartDesign::Body", "Body043")

sketch20 = body44.newObject("Sketcher::SketchObject", "Sketch019")
sketch20.AttachmentSupport = (doc.getObject("XY_Plane043"), [""])
sketch20.MapMode = "FlatFace"
sketch20.addGeometry([
    Part.LineSegment(Vector(0, 18, 0), Vector(0, 0, 0)),
    Part.LineSegment(Vector(0, 0, 0), Vector(15, 0, 0)),
    Part.LineSegment(Vector(15, 0, 0), Vector(15, 18, 0)),
    Part.LineSegment(Vector(15, 18, 0), Vector(0, 18, 0)),
], False)
sketch20.addConstraint([
    Sketcher.Constraint("Coincident", 0, 2, 1, 1),
    Sketcher.Constraint("Coincident", 1, 2, 2, 1),
    Sketcher.Constraint("Coincident", 2, 2, 3, 1),
    Sketcher.Constraint("Coincident", 3, 2, 0, 1),
    Sketcher.Constraint("Vertical", 0),
    Sketcher.Constraint("Horizontal", 1),
    Sketcher.Constraint("Vertical", 2),
    Sketcher.Constraint("Horizontal", 3),
    Sketcher.Constraint("Coincident", 0, 2, -1, 1),
    Sketcher.Constraint("DistanceX", 1, 1, 1, 2, Q("15 mm")),
    Sketcher.Constraint("DistanceY", 0, 2, 0, 1, Q("18 mm")),
])
pad19 = body44.newObject("PartDesign::Pad", "Pad018")
pad19.Profile = sketch20
pad19.Length = 15
body45 = doc.addObject("PartDesign::Body", "Body044")
doc.recompute()

body44.Placement = App.Placement(Vector(0, 0, 0), App.Rotation(Vector(0, 1, 0), 45))
boolean42 = body45.newObject("PartDesign::Boolean", "Boolean041")
boolean42.Type = "Fuse"
boolean42.addObjects([body44])
body46 = doc.addObject("PartDesign::Body", "Body045")
doc.recompute()

body45.Placement = App.Placement(Vector(-30, -9, 17), App.Rotation(Vector(0, 0, 1), 0))
boolean43 = body46.newObject("PartDesign::Boolean", "Boolean042")
boolean43.Type = "Fuse"
boolean43.addObjects([body45])
body47 = doc.addObject("PartDesign::Body", "Body046")

sketch21 = body47.newObject("Sketcher::SketchObject", "Sketch020")
sketch21.AttachmentSupport = (doc.getObject("XY_Plane046"), [""])
sketch21.MapMode = "FlatFace"
sketch21.addGeometry(Part.Circle(Vector(0, 0, 0), Vector(0, 0, 1), 6), False)
sketch21.addConstraint([
    Sketcher.Constraint("Coincident", 0, 3, -1, 1),
    Sketcher.Constraint("Diameter", 0, Q("12 mm")),
])
pad20 = body47.newObject("PartDesign::Pad", "Pad019")
pad20.Profile = sketch21
pad20.Length = 32
body48 = doc.addObject("PartDesign::Body", "Body047")
doc.recompute()

body47.Placement = App.Placement(Vector(0, 0, 0), App.Rotation(Vector(1, 0, 0), 90))
boolean44 = body48.newObject("PartDesign::Boolean", "Boolean043")
boolean44.Type = "Fuse"
boolean44.addObjects([body47])
body49 = doc.addObject("PartDesign::Body", "Body048")
doc.recompute()

body48.Placement = App.Placement(Vector(-6, 16, 6.5), App.Rotation(Vector(0, 0, 1), 0))
boolean45 = body49.newObject("PartDesign::Boolean", "Boolean044")
boolean45.Type = "Fuse"
boolean45.addObjects([body48])
body50 = doc.addObject("PartDesign::Body", "Body049")

sketch22 = body50.newObject("Sketcher::SketchObject", "Sketch021")
sketch22.AttachmentSupport = (doc.getObject("XY_Plane049"), [""])
sketch22.MapMode = "FlatFace"
sketch22.AttachmentOffset = App.Placement(Vector(0, 0, 6.5), App.Rotation())
sketch22.addGeometry([
    Part.LineSegment(Vector(-6, 16, 0), Vector(-6, -16, 0)),
    Part.LineSegment(Vector(-6, -16, 0), Vector(0, -16, 0)),
    Part.LineSegment(Vector(0, -16, 0), Vector(0, 16, 0)),
    Part.LineSegment(Vector(0, 16, 0), Vector(-6, 16, 0)),
], False)
sketch22.addConstraint([
    Sketcher.Constraint("Coincident", 0, 2, 1, 1),
    Sketcher.Constraint("Coincident", 1, 2, 2, 1),
    Sketcher.Constraint("Coincident", 2, 2, 3, 1),
    Sketcher.Constraint("Coincident", 3, 2, 0, 1),
    Sketcher.Constraint("Vertical", 0),
    Sketcher.Constraint("Horizontal", 1),
    Sketcher.Constraint("Vertical", 2),
    Sketcher.Constraint("Horizontal", 3),
    Sketcher.Constraint("Symmetric", 1, 2, 2, 2, -1, 1),
    Sketcher.Constraint("DistanceX", 1, 1, 1, 2, Q("6 mm")),
    Sketcher.Constraint("DistanceY", 0, 2, 0, 1, Q("32 mm")),
])
pad21 = body50.newObject("PartDesign::Pad", "Pad020")
pad21.Profile = sketch22
pad21.Length = 6
doc.recompute()

boolean46 = body50.newObject("PartDesign::Boolean", "Boolean045")
boolean46.Type = "Cut"
boolean46.addObjects([body49])
body51 = doc.addObject("PartDesign::Body", "Body050")

sketch23 = body51.newObject("Sketcher::SketchObject", "Sketch022")
sketch23.AttachmentSupport = (doc.getObject("XY_Plane050"), [""])
sketch23.MapMode = "FlatFace"
sketch23.AttachmentOffset = App.Placement(Vector(0, 0, 12.5), App.Rotation())
sketch23.addGeometry([
    Part.LineSegment(Vector(-19, 16, 0), Vector(-19, -16, 0)),
    Part.LineSegment(Vector(-19, -16, 0), Vector(0, -16, 0)),
    Part.LineSegment(Vector(0, -16, 0), Vector(0, 16, 0)),
    Part.LineSegment(Vector(0, 16, 0), Vector(-19, 16, 0)),
], False)
sketch23.addConstraint([
    Sketcher.Constraint("Coincident", 0, 2, 1, 1),
    Sketcher.Constraint("Coincident", 1, 2, 2, 1),
    Sketcher.Constraint("Coincident", 2, 2, 3, 1),
    Sketcher.Constraint("Coincident", 3, 2, 0, 1),
    Sketcher.Constraint("Vertical", 0),
    Sketcher.Constraint("Horizontal", 1),
    Sketcher.Constraint("Vertical", 2),
    Sketcher.Constraint("Horizontal", 3),
    Sketcher.Constraint("Symmetric", 1, 2, 2, 2, -1, 1),
    Sketcher.Constraint("DistanceX", 1, 1, 1, 2, Q("19 mm")),
    Sketcher.Constraint("DistanceY", 0, 2, 0, 1, Q("32 mm")),
])
pad22 = body51.newObject("PartDesign::Pad", "Pad021")
pad22.Profile = sketch23
pad22.Length = 3.5
doc.recompute()

boolean47 = body51.newObject("PartDesign::Boolean", "Boolean046")
boolean47.Type = "Fuse"
boolean47.addObjects([body50])
doc.recompute()

boolean48 = body51.newObject("PartDesign::Boolean", "Boolean047")
boolean48.Type = "Cut"
boolean48.addObjects([body46])
body52 = doc.addObject("PartDesign::Body", "Body051")

sketch24 = body52.newObject("Sketcher::SketchObject", "Sketch023")
sketch24.AttachmentSupport = (doc.getObject("XY_Plane051"), [""])
sketch24.MapMode = "FlatFace"
sketch24.addGeometry([
    Part.LineSegment(Vector(0, 26, 0), Vector(0, -16, 0)),
    Part.LineSegment(Vector(0, -16, 0), Vector(42, -16, 0)),
    Part.LineSegment(Vector(42, -16, 0), Vector(42, 26, 0)),
    Part.LineSegment(Vector(42, 26, 0), Vector(0, 26, 0)),
], False)
sketch24.addConstraint([
    Sketcher.Constraint("Coincident", 0, 2, 1, 1),
    Sketcher.Constraint("Coincident", 1, 2, 2, 1),
    Sketcher.Constraint("Coincident", 2, 2, 3, 1),
    Sketcher.Constraint("Coincident", 3, 2, 0, 1),
    Sketcher.Constraint("Vertical", 0),
    Sketcher.Constraint("Horizontal", 1),
    Sketcher.Constraint("Vertical", 2),
    Sketcher.Constraint("Horizontal", 3),
    Sketcher.Constraint("PointOnObject", 0, 2, -2),
    Sketcher.Constraint("Equal", 3, 0),
    Sketcher.Constraint("DistanceX", 1, 1, 1, 2, Q("42 mm")),
    Sketcher.Constraint("DistanceY", 0, 2, -1, 1, Q("16 mm")),
])
pad23 = body52.newObject("PartDesign::Pad", "Pad022")
pad23.Profile = sketch24
pad23.Length = 16
doc.recompute()

boolean49 = body52.newObject("PartDesign::Boolean", "Boolean048")
boolean49.Type = "Fuse"
boolean49.addObjects([body51])
body53 = doc.addObject("PartDesign::Body", "Body052")

sketch25 = body53.newObject("Sketcher::SketchObject", "Sketch024")
sketch25.AttachmentSupport = (doc.getObject("XY_Plane052"), [""])
sketch25.MapMode = "FlatFace"
sketch25.AttachmentOffset = App.Placement(Vector(0, 0, 8), App.Rotation())
sketch25.addGeometry(Part.Circle(Vector(0, 22, 0), Vector(0, 0, 1), 4), False)
sketch25.addConstraint([
    Sketcher.Constraint("PointOnObject", 0, 3, -2),
    Sketcher.Constraint("Diameter", 0, Q("8 mm")),
    Sketcher.Constraint("DistanceY", -1, 1, 0, 3, Q("22 mm")),
])
pad24 = body53.newObject("PartDesign::Pad", "Pad023")
pad24.Profile = sketch25
pad24.Length = 8
doc.recompute()

boolean50 = body53.newObject("PartDesign::Boolean", "Boolean049")
boolean50.Type = "Fuse"
boolean50.addObjects([body52])
doc.recompute()

boolean51 = body53.newObject("PartDesign::Boolean", "Boolean050")
boolean51.Type = "Cut"
boolean51.addObjects([body43])
doc.recompute()

boolean52 = body53.newObject("PartDesign::Boolean", "Boolean051")
boolean52.Type = "Fuse"
boolean52.addObjects([body7])

doc.recompute()
